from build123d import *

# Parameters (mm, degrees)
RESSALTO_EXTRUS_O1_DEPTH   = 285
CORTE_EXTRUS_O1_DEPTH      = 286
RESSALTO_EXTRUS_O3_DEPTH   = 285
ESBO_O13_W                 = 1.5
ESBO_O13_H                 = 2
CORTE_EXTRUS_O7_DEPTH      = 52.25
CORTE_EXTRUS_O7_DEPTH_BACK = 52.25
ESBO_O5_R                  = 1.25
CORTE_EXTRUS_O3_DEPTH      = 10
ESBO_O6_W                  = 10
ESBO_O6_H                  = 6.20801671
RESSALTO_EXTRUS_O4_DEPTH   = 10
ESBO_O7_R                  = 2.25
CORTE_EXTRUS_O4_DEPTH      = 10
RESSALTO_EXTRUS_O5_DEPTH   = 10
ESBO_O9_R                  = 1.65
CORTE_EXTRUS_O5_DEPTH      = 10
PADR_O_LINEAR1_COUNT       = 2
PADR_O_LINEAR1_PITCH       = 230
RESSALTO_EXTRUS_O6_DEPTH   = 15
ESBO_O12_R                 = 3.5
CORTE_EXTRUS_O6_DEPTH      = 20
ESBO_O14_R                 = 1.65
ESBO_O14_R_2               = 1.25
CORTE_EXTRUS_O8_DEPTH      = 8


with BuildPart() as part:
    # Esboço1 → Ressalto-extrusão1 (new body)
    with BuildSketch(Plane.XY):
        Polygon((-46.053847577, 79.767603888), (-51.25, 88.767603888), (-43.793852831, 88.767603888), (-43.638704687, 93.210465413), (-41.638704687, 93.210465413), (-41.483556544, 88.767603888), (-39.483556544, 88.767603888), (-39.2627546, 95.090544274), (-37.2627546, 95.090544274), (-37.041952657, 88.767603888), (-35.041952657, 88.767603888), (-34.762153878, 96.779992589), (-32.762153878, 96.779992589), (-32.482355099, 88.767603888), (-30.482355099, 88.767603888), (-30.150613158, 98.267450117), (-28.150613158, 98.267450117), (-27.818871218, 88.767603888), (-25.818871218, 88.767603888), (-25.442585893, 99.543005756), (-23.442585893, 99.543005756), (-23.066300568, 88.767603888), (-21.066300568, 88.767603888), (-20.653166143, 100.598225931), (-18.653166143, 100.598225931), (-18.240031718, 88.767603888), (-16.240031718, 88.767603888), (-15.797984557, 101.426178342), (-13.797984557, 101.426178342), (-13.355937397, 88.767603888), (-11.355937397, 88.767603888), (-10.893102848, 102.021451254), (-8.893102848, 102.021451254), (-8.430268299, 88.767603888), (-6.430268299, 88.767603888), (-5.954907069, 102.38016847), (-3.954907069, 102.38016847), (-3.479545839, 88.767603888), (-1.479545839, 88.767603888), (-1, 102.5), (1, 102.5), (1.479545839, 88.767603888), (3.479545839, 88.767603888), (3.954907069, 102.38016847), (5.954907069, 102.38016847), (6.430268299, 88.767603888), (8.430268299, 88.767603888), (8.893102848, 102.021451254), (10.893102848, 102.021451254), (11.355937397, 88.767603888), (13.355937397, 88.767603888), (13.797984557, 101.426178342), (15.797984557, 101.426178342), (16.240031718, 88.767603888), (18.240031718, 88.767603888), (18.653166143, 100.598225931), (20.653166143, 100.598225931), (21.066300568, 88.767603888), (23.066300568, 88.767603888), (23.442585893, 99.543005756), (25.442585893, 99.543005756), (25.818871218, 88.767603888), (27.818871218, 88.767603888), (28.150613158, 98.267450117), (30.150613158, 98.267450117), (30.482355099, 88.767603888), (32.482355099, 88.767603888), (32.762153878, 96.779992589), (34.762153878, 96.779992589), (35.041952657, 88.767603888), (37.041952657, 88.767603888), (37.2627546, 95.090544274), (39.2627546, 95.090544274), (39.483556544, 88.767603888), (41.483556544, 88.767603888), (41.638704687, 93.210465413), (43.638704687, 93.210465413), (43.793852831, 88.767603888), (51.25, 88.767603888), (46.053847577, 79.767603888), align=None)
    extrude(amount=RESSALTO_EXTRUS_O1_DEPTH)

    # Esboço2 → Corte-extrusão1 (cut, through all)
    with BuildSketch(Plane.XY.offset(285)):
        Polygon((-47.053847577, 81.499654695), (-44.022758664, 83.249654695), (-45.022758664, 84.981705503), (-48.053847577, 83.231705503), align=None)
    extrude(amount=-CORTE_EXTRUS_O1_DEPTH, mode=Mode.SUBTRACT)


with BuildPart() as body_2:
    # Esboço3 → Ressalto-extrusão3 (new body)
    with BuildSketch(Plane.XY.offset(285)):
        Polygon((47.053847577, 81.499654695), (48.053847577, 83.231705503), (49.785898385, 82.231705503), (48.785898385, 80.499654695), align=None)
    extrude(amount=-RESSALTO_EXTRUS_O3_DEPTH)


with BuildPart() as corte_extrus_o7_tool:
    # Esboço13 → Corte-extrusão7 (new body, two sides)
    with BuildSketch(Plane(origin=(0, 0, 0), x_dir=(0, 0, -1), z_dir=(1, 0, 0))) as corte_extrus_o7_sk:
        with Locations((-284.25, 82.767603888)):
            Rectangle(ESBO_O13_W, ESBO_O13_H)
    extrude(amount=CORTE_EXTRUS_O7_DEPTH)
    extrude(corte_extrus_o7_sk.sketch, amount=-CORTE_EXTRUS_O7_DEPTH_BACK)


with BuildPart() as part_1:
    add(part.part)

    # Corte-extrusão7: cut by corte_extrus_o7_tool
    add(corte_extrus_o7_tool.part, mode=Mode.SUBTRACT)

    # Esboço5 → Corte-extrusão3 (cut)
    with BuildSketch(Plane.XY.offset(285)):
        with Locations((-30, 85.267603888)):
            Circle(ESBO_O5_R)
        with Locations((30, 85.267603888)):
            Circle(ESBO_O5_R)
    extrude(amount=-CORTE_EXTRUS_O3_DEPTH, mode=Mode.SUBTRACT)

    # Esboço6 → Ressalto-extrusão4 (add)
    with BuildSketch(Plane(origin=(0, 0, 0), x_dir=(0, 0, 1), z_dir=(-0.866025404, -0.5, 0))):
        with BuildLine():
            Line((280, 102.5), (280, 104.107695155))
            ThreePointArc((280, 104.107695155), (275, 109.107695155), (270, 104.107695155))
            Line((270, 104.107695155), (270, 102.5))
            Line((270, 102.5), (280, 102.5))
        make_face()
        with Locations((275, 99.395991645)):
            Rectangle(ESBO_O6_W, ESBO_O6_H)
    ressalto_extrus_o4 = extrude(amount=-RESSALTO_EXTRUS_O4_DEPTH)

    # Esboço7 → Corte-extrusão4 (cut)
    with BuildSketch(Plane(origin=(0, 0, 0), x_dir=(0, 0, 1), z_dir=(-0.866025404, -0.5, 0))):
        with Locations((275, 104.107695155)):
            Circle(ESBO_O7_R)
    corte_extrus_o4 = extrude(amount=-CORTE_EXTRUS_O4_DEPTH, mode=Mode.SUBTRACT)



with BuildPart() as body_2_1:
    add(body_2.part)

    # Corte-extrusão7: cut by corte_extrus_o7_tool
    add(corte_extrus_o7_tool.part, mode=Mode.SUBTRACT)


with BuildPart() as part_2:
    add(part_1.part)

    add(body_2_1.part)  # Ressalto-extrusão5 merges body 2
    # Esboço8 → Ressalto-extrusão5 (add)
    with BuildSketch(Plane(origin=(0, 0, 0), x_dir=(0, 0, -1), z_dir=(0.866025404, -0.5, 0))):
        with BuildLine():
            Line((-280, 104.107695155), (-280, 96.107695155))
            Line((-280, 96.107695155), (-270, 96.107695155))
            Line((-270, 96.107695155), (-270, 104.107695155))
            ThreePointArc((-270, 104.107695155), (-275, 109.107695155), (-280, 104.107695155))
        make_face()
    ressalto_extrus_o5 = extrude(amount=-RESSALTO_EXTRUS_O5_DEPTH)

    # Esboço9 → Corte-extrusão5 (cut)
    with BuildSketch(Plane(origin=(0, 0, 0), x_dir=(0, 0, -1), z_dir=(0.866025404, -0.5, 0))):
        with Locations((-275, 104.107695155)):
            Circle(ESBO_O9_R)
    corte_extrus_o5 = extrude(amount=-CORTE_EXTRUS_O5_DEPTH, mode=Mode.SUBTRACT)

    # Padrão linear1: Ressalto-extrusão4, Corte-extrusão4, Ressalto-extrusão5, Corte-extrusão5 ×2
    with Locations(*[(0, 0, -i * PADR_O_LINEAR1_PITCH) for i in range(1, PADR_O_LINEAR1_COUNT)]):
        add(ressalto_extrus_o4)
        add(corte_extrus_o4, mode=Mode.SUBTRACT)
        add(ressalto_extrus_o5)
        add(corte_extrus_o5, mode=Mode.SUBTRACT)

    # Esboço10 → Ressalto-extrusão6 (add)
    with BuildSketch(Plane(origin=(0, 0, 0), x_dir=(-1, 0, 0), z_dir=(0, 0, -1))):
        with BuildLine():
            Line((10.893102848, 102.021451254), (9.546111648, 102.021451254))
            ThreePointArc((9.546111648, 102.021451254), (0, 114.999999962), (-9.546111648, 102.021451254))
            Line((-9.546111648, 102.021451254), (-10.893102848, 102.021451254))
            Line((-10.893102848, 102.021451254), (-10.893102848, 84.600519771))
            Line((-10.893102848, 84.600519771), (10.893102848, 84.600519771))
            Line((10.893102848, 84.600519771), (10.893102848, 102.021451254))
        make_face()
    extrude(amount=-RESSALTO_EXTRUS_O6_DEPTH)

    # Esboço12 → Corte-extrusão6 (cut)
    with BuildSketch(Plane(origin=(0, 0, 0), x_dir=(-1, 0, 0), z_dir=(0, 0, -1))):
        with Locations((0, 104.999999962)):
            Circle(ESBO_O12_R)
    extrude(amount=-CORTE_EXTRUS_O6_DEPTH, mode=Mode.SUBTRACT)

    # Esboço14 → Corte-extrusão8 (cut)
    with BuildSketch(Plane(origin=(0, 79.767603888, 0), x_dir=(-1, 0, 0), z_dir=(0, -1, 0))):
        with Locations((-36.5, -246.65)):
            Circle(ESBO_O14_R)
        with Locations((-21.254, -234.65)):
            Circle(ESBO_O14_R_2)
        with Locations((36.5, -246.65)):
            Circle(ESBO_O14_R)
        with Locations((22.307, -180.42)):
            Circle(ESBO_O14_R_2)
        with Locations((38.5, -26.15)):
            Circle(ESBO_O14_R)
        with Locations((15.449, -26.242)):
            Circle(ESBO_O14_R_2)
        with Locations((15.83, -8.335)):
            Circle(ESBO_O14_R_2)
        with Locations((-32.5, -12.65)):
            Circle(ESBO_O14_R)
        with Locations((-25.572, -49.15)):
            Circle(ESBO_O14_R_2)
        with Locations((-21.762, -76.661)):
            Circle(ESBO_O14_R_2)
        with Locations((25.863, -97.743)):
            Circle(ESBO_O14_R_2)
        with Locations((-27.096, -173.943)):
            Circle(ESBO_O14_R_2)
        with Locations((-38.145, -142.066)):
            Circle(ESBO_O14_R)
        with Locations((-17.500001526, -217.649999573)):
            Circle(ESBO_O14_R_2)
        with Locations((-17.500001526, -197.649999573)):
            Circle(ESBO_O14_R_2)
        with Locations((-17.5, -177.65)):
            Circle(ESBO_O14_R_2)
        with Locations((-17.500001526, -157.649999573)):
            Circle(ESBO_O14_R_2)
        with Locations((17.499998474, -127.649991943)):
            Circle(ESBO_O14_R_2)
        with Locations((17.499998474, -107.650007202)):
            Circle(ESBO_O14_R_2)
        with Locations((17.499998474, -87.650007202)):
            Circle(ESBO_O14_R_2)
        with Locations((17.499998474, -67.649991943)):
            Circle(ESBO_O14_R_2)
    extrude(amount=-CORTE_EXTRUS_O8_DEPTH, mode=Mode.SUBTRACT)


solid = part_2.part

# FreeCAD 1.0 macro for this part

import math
import FreeCAD as App
import Part
import Sketcher
from FreeCAD import Vector
Q = App.Units.Quantity


def add_polygon(sketch, points):
    """Adds a closed chain of lines whose ends are joined by coincident constraints."""
    first, n = sketch.GeometryCount, len(points)
    for a, b in zip(points, points[1:] + points[:1]):
        sketch.addGeometry(Part.LineSegment(App.Vector(*a, 0), App.Vector(*b, 0)), False)
    for i in range(n):
        sketch.addConstraint(Sketcher.Constraint("Coincident", first + i, 2, first + (i + 1) % n, 1))

doc = App.newDocument("Part")
params = doc.addObject("Spreadsheet::Sheet", "Params")
for row, (alias, value) in enumerate([
    ("sketch1_width", "2 mm"),
    ("pad1_length", "285 mm"),
    ("sketch2_length", "2 mm"),
    ("sketch2_length2", "3.5 mm"),
    ("sketch3_length", "2 mm"),
    ("pad2_length", "285 mm"),
    ("sketch4_width", "2 mm"),
    ("sketch4_height", "1.5 mm"),
    ("pad3_length", "52.25 mm"),
    ("pad3_length2", "52.25 mm"),
    ("sketch5_diameter", "2.5 mm"),
    ("pocket2_length", "10 mm"),
    ("sketch6_radius", "5 mm"),
    ("pad4_length", "10 mm"),
    ("sketch7_diameter", "4.5 mm"),
    ("pocket3_length", "10 mm"),
    ("sketch8_radius", "5 mm"),
    ("sketch8_height", "8 mm"),
    ("pad5_length", "10 mm"),
    ("sketch9_diameter", "3.3 mm"),
    ("pocket4_length", "10 mm"),
    ("linearpattern_pitch", "230 mm"),
    ("sketch10_radius", "10 mm"),
    ("pad6_length", "15 mm"),
    ("sketch11_diameter", "7 mm"),
    ("pocket5_length", "20 mm"),
    ("sketch12_diameter", "3.3 mm"),
    ("sketch12_diameter2", "2.5 mm"),
    ("pocket6_length", "8 mm"),
], start=1):
    params.set(f"A{row}", alias)
    params.set(f"B{row}", "=" + value)
    params.setAlias(f"B{row}", alias)

body = doc.addObject("PartDesign::Body", "Body")

sketch1 = body.newObject("Sketcher::SketchObject", "Sketch")
sketch1.AttachmentSupport = (doc.getObject("XY_Plane"), [""])
sketch1.MapMode = "FlatFace"
add_polygon(sketch1, [(-51.2, 88.8), (-46.1, 79.8), (46.1, 79.8), (51.2, 88.8), (43.8, 88.8), (43.6, 93.2), (41.6, 93.2), (41.5, 88.8), (39.5, 88.8), (39.3, 95.1), (37.3, 95.1), (37, 88.8), (35, 88.8), (34.8, 96.8), (32.8, 96.8), (32.5, 88.8), (30.5, 88.8), (30.2, 98.3), (28.2, 98.3), (27.8, 88.8), (25.8, 88.8), (25.4, 99.5), (23.4, 99.5), (23.1, 88.8), (21.1, 88.8), (20.7, 100.6), (18.7, 100.6), (18.2, 88.8), (16.2, 88.8), (15.8, 101.4), (13.8, 101.4), (13.4, 88.8), (11.4, 88.8), (10.9, 102), (8.9, 102), (8.4, 88.8), (6.4, 88.8), (6, 102.4), (4, 102.4), (3.5, 88.8), (1.5, 88.8), (1, 102.5), (-1, 102.5), (-1.5, 88.8), (-3.5, 88.8), (-4, 102.4), (-6, 102.4), (-6.4, 88.8), (-8.4, 88.8), (-8.9, 102), (-10.9, 102), (-11.4, 88.8), (-13.4, 88.8), (-13.8, 101.4), (-15.8, 101.4), (-16.2, 88.8), (-18.2, 88.8), (-18.7, 100.6), (-20.7, 100.6), (-21.1, 88.8), (-23.1, 88.8), (-23.4, 99.5), (-25.4, 99.5), (-25.8, 88.8), (-27.8, 88.8), (-28.2, 98.3), (-30.2, 98.3), (-30.5, 88.8), (-32.5, 88.8), (-32.8, 96.8), (-34.8, 96.8), (-35, 88.8), (-37, 88.8), (-37.3, 95.1), (-39.3, 95.1), (-39.5, 88.8), (-41.5, 88.8), (-41.6, 93.2), (-43.6, 93.2), (-43.8, 88.8)])
sketch1.addConstraint([
    Sketcher.Constraint("Horizontal", 1),
    Sketcher.Constraint("Horizontal", 3),
    Sketcher.Constraint("Horizontal", 5),
    Sketcher.Constraint("Horizontal", 7),
    Sketcher.Constraint("Horizontal", 9),
    Sketcher.Constraint("Horizontal", 11),
    Sketcher.Constraint("Horizontal", 13),
    Sketcher.Constraint("Horizontal", 15),
    Sketcher.Constraint("Horizontal", 17),
    Sketcher.Constraint("Horizontal", 19),
    Sketcher.Constraint("Horizontal", 21),
    Sketcher.Constraint("Horizontal", 23),
    Sketcher.Constraint("Horizontal", 25),
    Sketcher.Constraint("Horizontal", 27),
    Sketcher.Constraint("Horizontal", 29),
    Sketcher.Constraint("Horizontal", 31),
    Sketcher.Constraint("Horizontal", 33),
    Sketcher.Constraint("Horizontal", 35),
    Sketcher.Constraint("Horizontal", 37),
    Sketcher.Constraint("Horizontal", 39),
    Sketcher.Constraint("Horizontal", 41),
    Sketcher.Constraint("Horizontal", 43),
    Sketcher.Constraint("Horizontal", 45),
    Sketcher.Constraint("Horizontal", 47),
    Sketcher.Constraint("Horizontal", 49),
    Sketcher.Constraint("Horizontal", 51),
    Sketcher.Constraint("Horizontal", 53),
    Sketcher.Constraint("Horizontal", 55),
    Sketcher.Constraint("Horizontal", 57),
    Sketcher.Constraint("Horizontal", 59),
    Sketcher.Constraint("Horizontal", 61),
    Sketcher.Constraint("Horizontal", 63),
    Sketcher.Constraint("Horizontal", 65),
    Sketcher.Constraint("Horizontal", 67),
    Sketcher.Constraint("Horizontal", 69),
    Sketcher.Constraint("Horizontal", 71),
    Sketcher.Constraint("Horizontal", 73),
    Sketcher.Constraint("Horizontal", 75),
    Sketcher.Constraint("Horizontal", 77),
    Sketcher.Constraint("Horizontal", 79),
    Sketcher.Constraint("Symmetric", 39, 2, 42, 2, -2),
    Sketcher.Constraint("Symmetric", 37, 2, 44, 2, -2),
    Sketcher.Constraint("Symmetric", 35, 2, 46, 2, -2),
    Sketcher.Constraint("Symmetric", 33, 2, 48, 2, -2),
    Sketcher.Constraint("Symmetric", 31, 2, 50, 2, -2),
    Sketcher.Constraint("Symmetric", 29, 2, 52, 2, -2),
    Sketcher.Constraint("Symmetric", 27, 2, 54, 2, -2),
    Sketcher.Constraint("Symmetric", 25, 2, 56, 2, -2),
    Sketcher.Constraint("Symmetric", 23, 2, 58, 2, -2),
    Sketcher.Constraint("Symmetric", 21, 2, 60, 2, -2),
    Sketcher.Constraint("Symmetric", 19, 2, 62, 2, -2),
    Sketcher.Constraint("Symmetric", 17, 2, 64, 2, -2),
    Sketcher.Constraint("Symmetric", 15, 2, 66, 2, -2),
    Sketcher.Constraint("Symmetric", 13, 2, 68, 2, -2),
    Sketcher.Constraint("Symmetric", 11, 2, 70, 2, -2),
    Sketcher.Constraint("Symmetric", 9, 2, 72, 2, -2),
    Sketcher.Constraint("Symmetric", 7, 2, 74, 2, -2),
    Sketcher.Constraint("Symmetric", 5, 2, 76, 2, -2),
    Sketcher.Constraint("Symmetric", 3, 2, 78, 2, -2),
    Sketcher.Constraint("Parallel", 4, 8),
    Sketcher.Constraint("Parallel", 6, 10),
    Sketcher.Constraint("Parallel", 8, 12),
    Sketcher.Constraint("Parallel", 10, 14),
    Sketcher.Constraint("Parallel", 12, 16),
    Sketcher.Constraint("Parallel", 14, 18),
    Sketcher.Constraint("Parallel", 16, 20),
    Sketcher.Constraint("Parallel", 18, 22),
    Sketcher.Constraint("Parallel", 20, 24),
    Sketcher.Constraint("Parallel", 22, 26),
    Sketcher.Constraint("Parallel", 24, 28),
    Sketcher.Constraint("Parallel", 26, 30),
    Sketcher.Constraint("Parallel", 28, 32),
    Sketcher.Constraint("Parallel", 30, 34),
    Sketcher.Constraint("Parallel", 32, 36),
    Sketcher.Constraint("Parallel", 34, 38),
    Sketcher.Constraint("Parallel", 36, 40),
    Sketcher.Constraint("Parallel", 38, 42),
    Sketcher.Constraint("Parallel", 40, 44),
    Sketcher.Constraint("Parallel", 42, 46),
    Sketcher.Constraint("Parallel", 44, 48),
    Sketcher.Constraint("Parallel", 46, 50),
    Sketcher.Constraint("Parallel", 48, 52),
    Sketcher.Constraint("Parallel", 50, 54),
    Sketcher.Constraint("Parallel", 52, 56),
    Sketcher.Constraint("Parallel", 54, 58),
    Sketcher.Constraint("Parallel", 56, 60),
    Sketcher.Constraint("Parallel", 58, 62),
    Sketcher.Constraint("Parallel", 60, 64),
    Sketcher.Constraint("Parallel", 62, 66),
    Sketcher.Constraint("Parallel", 64, 68),
    Sketcher.Constraint("Parallel", 66, 70),
    Sketcher.Constraint("Parallel", 68, 72),
    Sketcher.Constraint("Parallel", 70, 74),
    Sketcher.Constraint("Parallel", 72, 76),
    Sketcher.Constraint("Parallel", 74, 78),
    Sketcher.Constraint("Horizontal", 3, 2, 6, 2),
    Sketcher.Constraint("Horizontal", 7, 2, 10, 2),
    Sketcher.Constraint("Horizontal", 11, 2, 14, 2),
    Sketcher.Constraint("Horizontal", 15, 2, 18, 2),
    Sketcher.Constraint("Horizontal", 19, 2, 22, 2),
    Sketcher.Constraint("Horizontal", 23, 2, 26, 2),
    Sketcher.Constraint("Horizontal", 27, 2, 30, 2),
    Sketcher.Constraint("Horizontal", 31, 2, 34, 2),
    Sketcher.Constraint("Horizontal", 35, 2, 38, 2),
    Sketcher.Constraint("Equal", 5, 7),
    Sketcher.Constraint("Equal", 7, 9),
    Sketcher.Constraint("Equal", 9, 11),
    Sketcher.Constraint("Equal", 11, 13),
    Sketcher.Constraint("Equal", 13, 15),
    Sketcher.Constraint("Equal", 15, 17),
    Sketcher.Constraint("Equal", 17, 19),
    Sketcher.Constraint("Equal", 19, 21),
    Sketcher.Constraint("Equal", 21, 23),
    Sketcher.Constraint("Equal", 23, 25),
    Sketcher.Constraint("Equal", 25, 27),
    Sketcher.Constraint("Equal", 27, 29),
    Sketcher.Constraint("Equal", 29, 31),
    Sketcher.Constraint("Equal", 31, 33),
    Sketcher.Constraint("Equal", 33, 35),
    Sketcher.Constraint("Equal", 35, 37),
    Sketcher.Constraint("Equal", 37, 39),
    Sketcher.Constraint("Equal", 39, 41),
    Sketcher.Constraint("Equal", 41, 43),
    Sketcher.Constraint("Equal", 3, 79),
    Sketcher.Constraint("Equal", 0, 2),
    Sketcher.Constraint("DistanceX", 5, 2, 5, 1, 2.0),
    Sketcher.Constraint("Angle", 0, Q("-60 deg")),
    Sketcher.Constraint("Angle", 4, Q("92 deg")),
    Sketcher.Constraint("DistanceY", -1, 1, 40, 2, 102.5),
    Sketcher.Constraint("DistanceX", -1, 1, 2, 2, 51.25),
    Sketcher.Constraint("DistanceX", -1, 1, 22, 2, 23.066301),
    Sketcher.Constraint("Distance", 4, 4.44557),
    Sketcher.Constraint("Distance", 20, 10.78197),
    Sketcher.Constraint("Distance", 28, 12.66629),
    Sketcher.Constraint("DistanceX", 1, 1, 1, 2, 92.107695),
    Sketcher.Constraint("DistanceX", 3, 2, 3, 1, 7.456147),
    Sketcher.Constraint("DistanceY", -1, 1, 16, 2, 98.26745),
    Sketcher.Constraint("DistanceX", -1, 1, 26, 2, 18.240032),
    Sketcher.Constraint("DistanceY", -1, 1, 28, 2, 101.426178),
    Sketcher.Constraint("DistanceY", -1, 1, 32, 2, 102.021451),
    Sketcher.Constraint("Distance", 8, 6.326794),
])
sketch1.setExpression("Constraints[205]", "Params.sketch1_width")
pad1 = body.newObject("PartDesign::Pad", "Pad")
pad1.Profile = sketch1
pad1.setExpression("Length", "Params.pad1_length")

sketch2 = body.newObject("Sketcher::SketchObject", "Sketch001")
sketch2.AttachmentSupport = (doc.getObject("XY_Plane"), [""])
sketch2.MapMode = "FlatFace"
sketch2.AttachmentOffset = App.Placement(Vector(0, 0, 285), App.Rotation())
add_polygon(sketch2, [(-47.1, 81.5), (-44, 83.2), (-45, 85), (-48.1, 83.2)])
sketch2.addConstraint([
    Sketcher.Constraint("Perpendicular", 0, 1),
    Sketcher.Constraint("Perpendicular", 1, 2),
    Sketcher.Constraint("Perpendicular", 2, 3),
    Sketcher.Constraint("Angle", 0, Q("30 deg")),
    Sketcher.Constraint("Distance", 1, 2.0),
    Sketcher.Constraint("Distance", 0, 3.5),
    Sketcher.Constraint("DistanceX", 0, 2, -1, 1, 44.022759),
    Sketcher.Constraint("DistanceY", -1, 1, 0, 2, 83.249655),
])
sketch2.setExpression("Constraints[8]", "Params.sketch2_length")
sketch2.setExpression("Constraints[9]", "Params.sketch2_length2")
pocket1 = body.newObject("PartDesign::Pocket", "Pocket")
pocket1.Profile = sketch2
pocket1.Type = "ThroughAll"
body2 = doc.addObject("PartDesign::Body", "Body001")

sketch3 = body2.newObject("Sketcher::SketchObject", "Sketch002")
sketch3.AttachmentSupport = (doc.getObject("XY_Plane001"), [""])
sketch3.MapMode = "FlatFace"
sketch3.AttachmentOffset = App.Placement(Vector(0, 0, 285), App.Rotation())
add_polygon(sketch3, [(48.1, 83.2), (47.1, 81.5), (48.8, 80.5), (49.8, 82.2)])
sketch3.addConstraint([
    Sketcher.Constraint("Perpendicular", 0, 1),
    Sketcher.Constraint("Perpendicular", 1, 2),
    Sketcher.Constraint("Perpendicular", 2, 3),
    Sketcher.Constraint("Equal", 0, 1),
    Sketcher.Constraint("Angle", 0, Q("-120 deg")),
    Sketcher.Constraint("Distance", 0, 2.0),
    Sketcher.Constraint("DistanceX", -1, 1, 1, 2, 48.785898),
    Sketcher.Constraint("DistanceY", -1, 1, 0, 2, 81.499655),
])
sketch3.setExpression("Constraints[9]", "Params.sketch3_length")
pad2 = body2.newObject("PartDesign::Pad", "Pad001")
pad2.Profile = sketch3
pad2.setExpression("Length", "Params.pad2_length")
pad2.Reversed = True
body3 = doc.addObject("PartDesign::Body", "Body002")

sketch4 = body3.newObject("Sketcher::SketchObject", "Sketch003")
sketch4.AttachmentSupport = (doc.getObject("YZ_Plane002"), [""])
sketch4.MapMode = "FlatFace"
add_polygon(sketch4, [(83.8, 285), (81.8, 285), (81.8, 283.5), (83.8, 283.5)])
sketch4.addConstraint([
    Sketcher.Constraint("Horizontal", 0),
    Sketcher.Constraint("Vertical", 1),
    Sketcher.Constraint("Horizontal", 2),
    Sketcher.Constraint("Vertical", 3),
    Sketcher.Constraint("DistanceX", 0, 2, 0, 1, 2.0),
    Sketcher.Constraint("DistanceY", 1, 2, 1, 1, 1.5),
    Sketcher.Constraint("DistanceY", -1, 1, 0, 2, 285.0),
    Sketcher.Constraint("DistanceX", -1, 1, 0, 2, 81.767604),
])
sketch4.setExpression("Constraints[8]", "Params.sketch4_width")
sketch4.setExpression("Constraints[9]", "Params.sketch4_height")
pad3 = body3.newObject("PartDesign::Pad", "Pad002")
pad3.Profile = sketch4
pad3.Type = "TwoLengths"
pad3.setExpression("Length", "Params.pad3_length")
pad3.setExpression("Length2", "Params.pad3_length2")
doc.recompute()

body4 = doc.addObject("PartDesign::Body", "Body003")
body4.BaseFeature = body3
boolean = body.newObject("PartDesign::Boolean", "Boolean")
boolean.Type = "Cut"
boolean.addObjects([body4])
doc.recompute()

sketch5 = body.newObject("Sketcher::SketchObject", "Sketch004")
sketch5.AttachmentSupport = (doc.getObject("XY_Plane"), [""])
sketch5.MapMode = "FlatFace"
sketch5.AttachmentOffset = App.Placement(Vector(0, 0, 285), App.Rotation())
sketch5.addGeometry([
    Part.Circle(Vector(-30, 85.3, 0), Vector(0, 0, 1), 1.2),
    Part.Circle(Vector(30, 85.3, 0), Vector(0, 0, 1), 1.2),
], False)
sketch5.addConstraint([
    Sketcher.Constraint("Equal", 0, 1),
    Sketcher.Constraint("Symmetric", 0, 3, 1, 3, -2),
    Sketcher.Constraint("Diameter", 0, 2.5),
    Sketcher.Constraint("DistanceX", 0, 3, -1, 1, 30.0),
    Sketcher.Constraint("DistanceY", -1, 1, 0, 3, 85.267604),
])
sketch5.setExpression("Constraints[2]", "Params.sketch5_diameter")
pocket2 = body.newObject("PartDesign::Pocket", "Pocket001")
pocket2.Profile = sketch5
pocket2.setExpression("Length", "Params.pocket2_length")

sketch6 = body.newObject("Sketcher::SketchObject", "Sketch005")
sketch6.Placement = App.Placement(Vector(0, 0, 0), App.Rotation(Vector(0, 0, 1), Vector(-0.5, 0.866025404, 0), Vector(-0.866025404, -0.5, 0), "ZXY"))
sketch6.addGeometry([
    Part.ArcOfCircle(Part.Circle(Vector(275, 104, 0), Vector(0, 0, 1), 5), math.radians(0), math.radians(180)),
    Part.LineSegment(Vector(270, 104, 0), Vector(270, 96, 0)),
    Part.LineSegment(Vector(270, 96, 0), Vector(280, 96, 0)),
    Part.LineSegment(Vector(280, 96, 0), Vector(280, 104, 0)),
], False)
sketch6.addConstraint([
    Sketcher.Constraint("Tangent", 0, 2, 1, 1),
    Sketcher.Constraint("Coincident", 1, 2, 2, 1),
    Sketcher.Constraint("Coincident", 2, 2, 3, 1),
    Sketcher.Constraint("Tangent", 3, 2, 0, 1),
    Sketcher.Constraint("Vertical", 1),
    Sketcher.Constraint("Horizontal", 2),
    Sketcher.Constraint("Vertical", 3),
    Sketcher.Constraint("Radius", 0, 5.0),
    Sketcher.Constraint("DistanceX", -1, 1, 0, 3, 275.0),
    Sketcher.Constraint("DistanceY", 1, 2, 1, 1, 7.815712),
    Sketcher.Constraint("DistanceY", -1, 1, 0, 3, 104.107695),
])
sketch6.setExpression("Constraints[7]", "Params.sketch6_radius")
pad4 = body.newObject("PartDesign::Pad", "Pad003")
pad4.Profile = sketch6
pad4.setExpression("Length", "Params.pad4_length")
pad4.Reversed = True

sketch7 = body.newObject("Sketcher::SketchObject", "Sketch006")
sketch7.Placement = App.Placement(Vector(0, 0, 0), App.Rotation(Vector(0, 0, 1), Vector(-0.5, 0.866025404, 0), Vector(-0.866025404, -0.5, 0), "ZXY"))
sketch7.addGeometry(Part.Circle(Vector(275, 104.1, 0), Vector(0, 0, 1), 2.2), False)
sketch7.addConstraint([
    Sketcher.Constraint("Diameter", 0, 4.5),
    Sketcher.Constraint("DistanceX", -1, 1, 0, 3, 275.0),
    Sketcher.Constraint("DistanceY", -1, 1, 0, 3, 104.107695),
])
sketch7.setExpression("Constraints[0]", "Params.sketch7_diameter")
pocket3 = body.newObject("PartDesign::Pocket", "Pocket002")
pocket3.Profile = sketch7
pocket3.setExpression("Length", "Params.pocket3_length")
doc.recompute()

boolean2 = body2.newObject("PartDesign::Boolean", "Boolean001")
boolean2.Type = "Cut"
boolean2.addObjects([body3])
doc.recompute()

boolean3 = body.newObject("PartDesign::Boolean", "Boolean002")
boolean3.Type = "Fuse"
boolean3.addObjects([body2])

sketch8 = body.newObject("Sketcher::SketchObject", "Sketch007")
sketch8.Placement = App.Placement(Vector(0, 0, 0), App.Rotation(Vector(0, 0, -1), Vector(0.5, 0.866025404, 0), Vector(0.866025404, -0.5, 0), "ZXY"))
sketch8.addGeometry([
    Part.LineSegment(Vector(-280, 104, 0), Vector(-280, 96, 0)),
    Part.LineSegment(Vector(-280, 96, 0), Vector(-270, 96, 0)),
    Part.LineSegment(Vector(-270, 96, 0), Vector(-270, 104, 0)),
    Part.ArcOfCircle(Part.Circle(Vector(-275, 104, 0), Vector(0, 0, 1), 5), math.radians(0), math.radians(180)),
], False)
sketch8.addConstraint([
    Sketcher.Constraint("Coincident", 0, 2, 1, 1),
    Sketcher.Constraint("Coincident", 1, 2, 2, 1),
    Sketcher.Constraint("Tangent", 2, 2, 3, 1),
    Sketcher.Constraint("Tangent", 3, 2, 0, 1),
    Sketcher.Constraint("Vertical", 0),
    Sketcher.Constraint("Horizontal", 1),
    Sketcher.Constraint("Vertical", 2),
    Sketcher.Constraint("Radius", 3, 5.0),
    Sketcher.Constraint("DistanceY", 0, 2, 0, 1, 8.0),
    Sketcher.Constraint("DistanceX", 3, 3, -1, 1, 275.0),
    Sketcher.Constraint("DistanceY", -1, 1, 3, 3, 104.107695),
])
sketch8.setExpression("Constraints[7]", "Params.sketch8_radius")
sketch8.setExpression("Constraints[8]", "Params.sketch8_height")
pad5 = body.newObject("PartDesign::Pad", "Pad004")
pad5.Profile = sketch8
pad5.setExpression("Length", "Params.pad5_length")
pad5.Reversed = True

sketch9 = body.newObject("Sketcher::SketchObject", "Sketch008")
sketch9.Placement = App.Placement(Vector(0, 0, 0), App.Rotation(Vector(0, 0, -1), Vector(0.5, 0.866025404, 0), Vector(0.866025404, -0.5, 0), "ZXY"))
sketch9.addGeometry(Part.Circle(Vector(-275, 104.1, 0), Vector(0, 0, 1), 1.6), False)
sketch9.addConstraint([
    Sketcher.Constraint("Diameter", 0, 3.3),
    Sketcher.Constraint("DistanceX", 0, 3, -1, 1, 275.0),
    Sketcher.Constraint("DistanceY", -1, 1, 0, 3, 104.107695),
])
sketch9.setExpression("Constraints[0]", "Params.sketch9_diameter")
pocket4 = body.newObject("PartDesign::Pocket", "Pocket003")
pocket4.Profile = sketch9
pocket4.setExpression("Length", "Params.pocket4_length")
doc.recompute()

linearpattern = body.newObject("PartDesign::LinearPattern", "LinearPattern")
linearpattern.Originals = [pad4, pocket3, pad5, pocket4]
linearpattern.Direction = (doc.getObject("Z_Axis"), [""])
linearpattern.Mode = "offset"
linearpattern.setExpression("Offset", "Params.linearpattern_pitch")
linearpattern.Occurrences = 2
linearpattern.Reversed = True
body.Tip = linearpattern

sketch10 = body.newObject("Sketcher::SketchObject", "Sketch009")
sketch10.AttachmentSupport = (doc.getObject("XY_Plane"), [""])
sketch10.MapMode = "FlatFace"
sketch10.addGeometry([
    Part.LineSegment(Vector(-10.9, 102, 0), Vector(-9.5, 102, 0)),
    Part.ArcOfCircle(Part.Circle(Vector(0, 105, 0), Vector(0, 0, 1), 10), math.radians(-17), math.radians(197)),
    Part.LineSegment(Vector(9.5, 102, 0), Vector(10.9, 102, 0)),
    Part.LineSegment(Vector(10.9, 102, 0), Vector(10.9, 84.6, 0)),
    Part.LineSegment(Vector(10.9, 84.6, 0), Vector(-10.9, 84.6, 0)),
    Part.LineSegment(Vector(-10.9, 84.6, 0), Vector(-10.9, 102, 0)),
], False)
sketch10.addConstraint([
    Sketcher.Constraint("Coincident", 0, 2, 1, 2),
    Sketcher.Constraint("Coincident", 1, 1, 2, 1),
    Sketcher.Constraint("Coincident", 2, 2, 3, 1),
    Sketcher.Constraint("Coincident", 3, 2, 4, 1),
    Sketcher.Constraint("Coincident", 4, 2, 5, 1),
    Sketcher.Constraint("Coincident", 5, 2, 0, 1),
    Sketcher.Constraint("Horizontal", 0),
    Sketcher.Constraint("Horizontal", 2),
    Sketcher.Constraint("Vertical", 3),
    Sketcher.Constraint("Horizontal", 4),
    Sketcher.Constraint("Vertical", 5),
    Sketcher.Constraint("Symmetric", 0, 2, 1, 1, -2),
    Sketcher.Constraint("Equal", 0, 2),
    Sketcher.Constraint("Radius", 1, 10.0),
    Sketcher.Constraint("DistanceY", -1, 1, 1, 3, 105.0),
    Sketcher.Constraint("DistanceX", 0, 1, 0, 2, 1.346991),
    Sketcher.Constraint("DistanceY", 3, 2, 3, 1, 17.420931),
    Sketcher.Constraint("DistanceX", 4, 2, 4, 1, 21.786206),
])
sketch10.setExpression("Constraints[13]", "Params.sketch10_radius")
pad6 = body.newObject("PartDesign::Pad", "Pad005")
pad6.Profile = sketch10
pad6.setExpression("Length", "Params.pad6_length")

sketch11 = body.newObject("Sketcher::SketchObject", "Sketch010")
sketch11.AttachmentSupport = (doc.getObject("XY_Plane"), [""])
sketch11.MapMode = "FlatFace"
sketch11.addGeometry(Part.Circle(Vector(0, 105, 0), Vector(0, 0, 1), 3.5), False)
sketch11.addConstraint([
    Sketcher.Constraint("PointOnObject", 0, 3, -2),
    Sketcher.Constraint("Diameter", 0, 7.0),
    Sketcher.Constraint("DistanceY", -1, 1, 0, 3, 105.0),
])
sketch11.setExpression("Constraints[1]", "Params.sketch11_diameter")
pocket5 = body.newObject("PartDesign::Pocket", "Pocket004")
pocket5.Profile = sketch11
pocket5.setExpression("Length", "Params.pocket5_length")
pocket5.Reversed = True

sketch12 = body.newObject("Sketcher::SketchObject", "Sketch011")
sketch12.AttachmentSupport = (doc.getObject("XZ_Plane"), [""])
sketch12.MapMode = "FlatFace"
sketch12.AttachmentOffset = App.Placement(Vector(0, 0, -79.767604), App.Rotation())
sketch12.addGeometry([
    Part.Circle(Vector(36.5, 246.7, 0), Vector(0, 0, 1), 1.6),
    Part.Circle(Vector(21.3, 234.7, 0), Vector(0, 0, 1), 1.2),
    Part.Circle(Vector(-36.5, 246.7, 0), Vector(0, 0, 1), 1.6),
    Part.Circle(Vector(-22.3, 180.4, 0), Vector(0, 0, 1), 1.2),
    Part.Circle(Vector(-38.5, 26.1, 0), Vector(0, 0, 1), 1.6),
    Part.Circle(Vector(-15.4, 26.2, 0), Vector(0, 0, 1), 1.2),
    Part.Circle(Vector(-15.8, 8.3, 0), Vector(0, 0, 1), 1.2),
    Part.Circle(Vector(32.5, 12.7, 0), Vector(0, 0, 1), 1.6),
    Part.Circle(Vector(25.6, 49.1, 0), Vector(0, 0, 1), 1.2),
    Part.Circle(Vector(21.8, 76.7, 0), Vector(0, 0, 1), 1.2),
    Part.Circle(Vector(-25.9, 97.7, 0), Vector(0, 0, 1), 1.2),
    Part.Circle(Vector(27.1, 173.9, 0), Vector(0, 0, 1), 1.2),
    Part.Circle(Vector(38.1, 142.1, 0), Vector(0, 0, 1), 1.6),
    Part.Circle(Vector(17.5, 217.6, 0), Vector(0, 0, 1), 1.2),
    Part.Circle(Vector(17.5, 197.6, 0), Vector(0, 0, 1), 1.2),
    Part.Circle(Vector(17.5, 177.7, 0), Vector(0, 0, 1), 1.2),
    Part.Circle(Vector(17.5, 157.6, 0), Vector(0, 0, 1), 1.2),
    Part.Circle(Vector(-17.5, 127.6, 0), Vector(0, 0, 1), 1.2),
    Part.Circle(Vector(-17.5, 107.7, 0), Vector(0, 0, 1), 1.2),
    Part.Circle(Vector(-17.5, 87.7, 0), Vector(0, 0, 1), 1.2),
    Part.Circle(Vector(-17.5, 67.6, 0), Vector(0, 0, 1), 1.2),
], False)
sketch12.addConstraint([
    Sketcher.Constraint("Equal", 0, 2),
    Sketcher.Constraint("Equal", 1, 3),
    Sketcher.Constraint("Equal", 2, 4),
    Sketcher.Constraint("Equal", 3, 5),
    Sketcher.Constraint("Equal", 5, 6),
    Sketcher.Constraint("Equal", 4, 7),
    Sketcher.Constraint("Equal", 6, 8),
    Sketcher.Constraint("Equal", 8, 9),
    Sketcher.Constraint("Equal", 9, 10),
    Sketcher.Constraint("Equal", 10, 11),
    Sketcher.Constraint("Equal", 7, 12),
    Sketcher.Constraint("Equal", 11, 13),
    Sketcher.Constraint("Equal", 13, 14),
    Sketcher.Constraint("Equal", 14, 15),
    Sketcher.Constraint("Equal", 15, 16),
    Sketcher.Constraint("Equal", 16, 17),
    Sketcher.Constraint("Equal", 17, 18),
    Sketcher.Constraint("Equal", 18, 19),
    Sketcher.Constraint("Equal", 19, 20),
    Sketcher.Constraint("Symmetric", 0, 3, 2, 3, -2),
    Sketcher.Constraint("Vertical", 13, 3, 14, 3),
    Sketcher.Constraint("Vertical", 14, 3, 15, 3),
    Sketcher.Constraint("Vertical", 15, 3, 16, 3),
    Sketcher.Constraint("Vertical", 17, 3, 18, 3),
    Sketcher.Constraint("Vertical", 18, 3, 19, 3),
    Sketcher.Constraint("Vertical", 19, 3, 20, 3),
    Sketcher.Constraint("Diameter", 0, 3.3),
    Sketcher.Constraint("Diameter", 1, 2.5),
    Sketcher.Constraint("DistanceY", 1, 3, 0, 3, 12.0),
    Sketcher.Constraint("DistanceX", 2, 3, 0, 3, 73.0),
    Sketcher.Constraint("DistanceX", 4, 3, 2, 3, 2.0),
    Sketcher.Constraint("DistanceX", 4, 3, 7, 3, 71.0),
    Sketcher.Constraint("DistanceY", 7, 3, 1, 3, 222.0),
    Sketcher.Constraint("DistanceY", 4, 3, 8, 3, 23.0),
    Sketcher.Constraint("DistanceY", 13, 3, 1, 3, 17.0),
    Sketcher.Constraint("DistanceX", 13, 3, 0, 3, 18.999998),
    Sketcher.Constraint("DistanceY", 14, 3, 13, 3, 20.0),
    Sketcher.Constraint("DistanceY", 15, 3, 14, 3, 20.0),
    Sketcher.Constraint("DistanceY", 16, 3, 15, 3, 20.0),
    Sketcher.Constraint("DistanceX", 17, 3, 16, 3, 35.0),
    Sketcher.Constraint("DistanceY", 19, 3, 18, 3, 20.0),
    Sketcher.Constraint("DistanceY", 4, 3, 1, 3, 208.5),
    Sketcher.Constraint("DistanceY", 10, 3, 11, 3, 76.2),
    Sketcher.Constraint("DistanceY", -1, 1, 0, 3, 246.65),
    Sketcher.Constraint("DistanceY", -1, 1, 3, 3, 180.42),
    Sketcher.Constraint("DistanceX", 6, 3, -1, 1, 15.83),
    Sketcher.Constraint("DistanceX", 9, 3, 8, 3, 3.81),
    Sketcher.Constraint("DistanceX", -1, 1, 1, 3, 21.254),
    Sketcher.Constraint("DistanceX", 3, 3, -1, 1, 22.307),
    Sketcher.Constraint("DistanceX", 5, 3, -1, 1, 15.449),
    Sketcher.Constraint("DistanceY", -1, 1, 5, 3, 26.242),
    Sketcher.Constraint("DistanceY", -1, 1, 6, 3, 8.335),
    Sketcher.Constraint("DistanceX", -1, 1, 8, 3, 25.572),
    Sketcher.Constraint("DistanceY", -1, 1, 9, 3, 76.661),
    Sketcher.Constraint("DistanceX", 10, 3, -1, 1, 25.863),
    Sketcher.Constraint("DistanceY", -1, 1, 10, 3, 97.743),
    Sketcher.Constraint("DistanceX", -1, 1, 11, 3, 27.096),
    Sketcher.Constraint("DistanceX", -1, 1, 12, 3, 38.145),
    Sketcher.Constraint("DistanceY", -1, 1, 12, 3, 142.066),
    Sketcher.Constraint("DistanceY", -1, 1, 17, 3, 127.649992),
    Sketcher.Constraint("DistanceY", -1, 1, 20, 3, 67.649992),
    Sketcher.Constraint("DistanceY", -1, 1, 18, 3, 107.650007),
])
sketch12.setExpression("Constraints[26]", "Params.sketch12_diameter")
sketch12.setExpression("Constraints[27]", "Params.sketch12_diameter2")
pocket6 = body.newObject("PartDesign::Pocket", "Pocket005")
pocket6.Profile = sketch12
pocket6.setExpression("Length", "Params.pocket6_length")

doc.recompute()
